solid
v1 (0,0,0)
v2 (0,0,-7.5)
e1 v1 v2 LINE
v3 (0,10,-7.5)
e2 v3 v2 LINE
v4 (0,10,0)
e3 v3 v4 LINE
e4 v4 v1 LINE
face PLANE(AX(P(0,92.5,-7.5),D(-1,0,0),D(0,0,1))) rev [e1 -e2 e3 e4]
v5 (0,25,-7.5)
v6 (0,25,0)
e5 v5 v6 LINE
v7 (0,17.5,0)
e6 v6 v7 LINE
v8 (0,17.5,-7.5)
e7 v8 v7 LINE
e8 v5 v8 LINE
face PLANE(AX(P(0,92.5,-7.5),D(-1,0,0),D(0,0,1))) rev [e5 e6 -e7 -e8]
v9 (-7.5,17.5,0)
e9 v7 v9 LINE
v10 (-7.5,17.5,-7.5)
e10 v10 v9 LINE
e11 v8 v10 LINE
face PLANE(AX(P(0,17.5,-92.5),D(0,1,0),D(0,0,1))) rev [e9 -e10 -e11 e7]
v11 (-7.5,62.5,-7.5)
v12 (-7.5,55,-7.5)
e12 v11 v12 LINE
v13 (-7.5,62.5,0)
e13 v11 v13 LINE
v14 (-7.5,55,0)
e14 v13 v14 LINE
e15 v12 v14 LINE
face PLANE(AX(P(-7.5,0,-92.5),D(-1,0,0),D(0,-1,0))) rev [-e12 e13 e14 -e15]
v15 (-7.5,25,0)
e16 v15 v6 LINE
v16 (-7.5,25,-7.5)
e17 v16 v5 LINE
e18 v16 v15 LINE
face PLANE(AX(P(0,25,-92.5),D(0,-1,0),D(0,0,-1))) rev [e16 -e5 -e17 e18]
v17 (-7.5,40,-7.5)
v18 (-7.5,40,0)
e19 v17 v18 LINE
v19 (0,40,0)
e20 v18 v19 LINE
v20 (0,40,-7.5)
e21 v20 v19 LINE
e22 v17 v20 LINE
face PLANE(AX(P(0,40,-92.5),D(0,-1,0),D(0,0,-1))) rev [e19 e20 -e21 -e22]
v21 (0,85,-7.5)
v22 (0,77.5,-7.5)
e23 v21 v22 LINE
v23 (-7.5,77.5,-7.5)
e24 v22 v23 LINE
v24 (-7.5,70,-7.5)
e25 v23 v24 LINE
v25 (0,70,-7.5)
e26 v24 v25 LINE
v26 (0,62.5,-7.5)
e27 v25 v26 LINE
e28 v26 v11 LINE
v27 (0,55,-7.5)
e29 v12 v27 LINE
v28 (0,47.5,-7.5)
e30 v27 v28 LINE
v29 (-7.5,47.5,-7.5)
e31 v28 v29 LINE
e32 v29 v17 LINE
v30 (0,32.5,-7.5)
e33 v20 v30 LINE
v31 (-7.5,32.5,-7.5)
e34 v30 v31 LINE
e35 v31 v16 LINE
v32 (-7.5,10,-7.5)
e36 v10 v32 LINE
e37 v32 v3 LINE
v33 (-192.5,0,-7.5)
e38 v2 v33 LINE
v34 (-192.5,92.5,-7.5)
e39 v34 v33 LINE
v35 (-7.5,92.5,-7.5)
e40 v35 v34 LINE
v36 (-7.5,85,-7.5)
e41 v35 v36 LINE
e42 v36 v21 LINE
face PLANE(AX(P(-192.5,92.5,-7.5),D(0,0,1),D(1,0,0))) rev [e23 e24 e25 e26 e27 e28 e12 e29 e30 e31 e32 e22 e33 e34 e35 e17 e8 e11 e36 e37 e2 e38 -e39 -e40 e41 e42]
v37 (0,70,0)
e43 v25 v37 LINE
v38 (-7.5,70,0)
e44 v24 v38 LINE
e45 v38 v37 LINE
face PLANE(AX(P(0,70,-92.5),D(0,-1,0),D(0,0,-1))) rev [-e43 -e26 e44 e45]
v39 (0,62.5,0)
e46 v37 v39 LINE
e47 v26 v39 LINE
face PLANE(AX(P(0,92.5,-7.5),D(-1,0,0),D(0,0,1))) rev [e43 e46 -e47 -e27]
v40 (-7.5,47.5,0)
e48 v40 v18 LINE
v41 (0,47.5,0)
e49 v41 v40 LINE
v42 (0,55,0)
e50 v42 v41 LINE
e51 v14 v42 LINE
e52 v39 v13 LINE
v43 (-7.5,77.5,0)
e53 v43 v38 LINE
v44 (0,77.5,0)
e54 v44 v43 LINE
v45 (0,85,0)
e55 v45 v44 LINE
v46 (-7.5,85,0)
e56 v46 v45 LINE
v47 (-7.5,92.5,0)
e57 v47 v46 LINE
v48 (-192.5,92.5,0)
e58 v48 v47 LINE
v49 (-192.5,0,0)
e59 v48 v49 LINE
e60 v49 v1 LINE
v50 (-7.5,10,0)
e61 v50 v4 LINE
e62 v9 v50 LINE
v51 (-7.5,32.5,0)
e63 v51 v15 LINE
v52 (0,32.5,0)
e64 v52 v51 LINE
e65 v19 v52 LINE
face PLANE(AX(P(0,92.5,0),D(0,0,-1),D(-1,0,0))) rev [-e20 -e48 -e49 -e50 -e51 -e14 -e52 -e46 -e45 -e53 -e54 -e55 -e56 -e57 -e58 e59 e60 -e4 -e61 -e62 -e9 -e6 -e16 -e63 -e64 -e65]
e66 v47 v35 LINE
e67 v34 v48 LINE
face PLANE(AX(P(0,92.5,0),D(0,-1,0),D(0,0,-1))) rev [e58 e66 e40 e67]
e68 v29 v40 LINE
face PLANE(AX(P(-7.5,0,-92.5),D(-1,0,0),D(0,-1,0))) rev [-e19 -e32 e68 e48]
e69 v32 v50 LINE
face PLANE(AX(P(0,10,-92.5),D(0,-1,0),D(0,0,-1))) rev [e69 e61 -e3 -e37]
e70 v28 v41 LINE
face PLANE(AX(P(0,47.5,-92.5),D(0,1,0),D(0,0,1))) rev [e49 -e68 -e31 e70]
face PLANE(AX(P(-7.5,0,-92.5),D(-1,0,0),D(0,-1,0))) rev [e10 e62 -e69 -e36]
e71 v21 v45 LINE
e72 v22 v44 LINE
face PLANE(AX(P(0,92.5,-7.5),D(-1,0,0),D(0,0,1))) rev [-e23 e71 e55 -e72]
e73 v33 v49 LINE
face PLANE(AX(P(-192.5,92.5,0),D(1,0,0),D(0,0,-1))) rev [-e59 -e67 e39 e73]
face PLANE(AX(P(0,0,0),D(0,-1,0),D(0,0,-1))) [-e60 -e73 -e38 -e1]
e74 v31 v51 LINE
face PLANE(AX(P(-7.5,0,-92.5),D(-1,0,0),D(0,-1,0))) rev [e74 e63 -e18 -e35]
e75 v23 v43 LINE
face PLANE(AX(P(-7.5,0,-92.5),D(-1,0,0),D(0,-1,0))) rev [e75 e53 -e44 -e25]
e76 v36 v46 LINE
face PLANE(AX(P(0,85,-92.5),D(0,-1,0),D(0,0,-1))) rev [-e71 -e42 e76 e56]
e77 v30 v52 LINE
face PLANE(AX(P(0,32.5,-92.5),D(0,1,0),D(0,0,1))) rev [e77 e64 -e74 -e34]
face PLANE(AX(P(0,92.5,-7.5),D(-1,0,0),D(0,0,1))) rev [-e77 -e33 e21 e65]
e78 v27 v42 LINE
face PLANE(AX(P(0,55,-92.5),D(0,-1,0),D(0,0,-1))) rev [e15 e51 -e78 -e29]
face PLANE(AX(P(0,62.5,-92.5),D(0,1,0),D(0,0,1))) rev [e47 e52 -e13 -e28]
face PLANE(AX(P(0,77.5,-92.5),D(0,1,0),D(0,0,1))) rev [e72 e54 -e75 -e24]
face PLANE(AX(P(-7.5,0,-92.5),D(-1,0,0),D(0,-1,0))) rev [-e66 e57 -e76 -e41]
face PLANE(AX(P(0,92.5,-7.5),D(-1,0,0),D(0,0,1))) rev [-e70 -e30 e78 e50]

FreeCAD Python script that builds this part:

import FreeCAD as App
import Part
import Sketcher
from FreeCAD import Vector
Q = App.Units.Quantity


def add_polygon(sketch, points):
    """Adds a closed chain of lines whose ends are joined by coincident constraints."""
    first, n = sketch.GeometryCount, len(points)
    for a, b in zip(points, points[1:] + points[:1]):
        sketch.addGeometry(Part.LineSegment(App.Vector(*a, 0), App.Vector(*b, 0)), False)
    for i in range(n):
        sketch.addConstraint(Sketcher.Constraint("Coincident", first + i, 2, first + (i + 1) % n, 1))

doc = App.newDocument("Part")
body = doc.addObject("PartDesign::Body", "Body")

# Sketch on XZ plane
sketch1 = body.newObject("Sketcher::SketchObject", "Sketch")
sketch1.AttachmentSupport = (doc.getObject("XZ_Plane"), [""])
sketch1.MapMode = "FlatFace"
add_polygon(sketch1, [(-192, -8), (-192, 0), (0, 0), (0, -8)])  # lines 0-3
sketch1.addConstraint([
    Sketcher.Constraint("Vertical", 0),
    Sketcher.Constraint("Horizontal", 1),
    Sketcher.Constraint("Vertical", 2),
    Sketcher.Constraint("Horizontal", 3),
    Sketcher.Constraint("Coincident", 1, 2, -1, 1),
    Sketcher.Constraint("DistanceX", 1, 1, 1, 2, Q("192.5 mm")),
    Sketcher.Constraint("DistanceY", 0, 1, 0, 2, Q("7.5 mm")),
])
pad1 = body.newObject("PartDesign::Pad", "Pad")
pad1.Profile = sketch1
pad1.Length = 92.5
pad1.Reversed = True

# Sketch on XY plane
sketch2 = body.newObject("Sketcher::SketchObject", "Sketch001")
sketch2.AttachmentSupport = (doc.getObject("XY_Plane"), [""])
sketch2.MapMode = "FlatFace"
add_polygon(sketch2, [(-8, 92), (-8, 85), (0, 85), (0, 92)])  # lines 0-3
add_polygon(sketch2, [(-8, 78), (-8, 70), (0, 70), (0, 78)])  # lines 4-7
add_polygon(sketch2, [(-8, 62), (-8, 55), (0, 55), (0, 62)])  # lines 8-11
add_polygon(sketch2, [(-8, 48), (-8, 40), (0, 40), (0, 48)])  # lines 12-15
add_polygon(sketch2, [(-8, 32), (-8, 25), (0, 25), (0, 32)])  # lines 16-19
add_polygon(sketch2, [(-8, 18), (-8, 10), (0, 10), (0, 18)])  # lines 20-23
sketch2.addConstraint([
    Sketcher.Constraint("Vertical", 0),
    Sketcher.Constraint("Horizontal", 1),
    Sketcher.Constraint("Vertical", 2),
    Sketcher.Constraint("Horizontal", 3),
    Sketcher.Constraint("Vertical", 4),
    Sketcher.Constraint("Horizontal", 5),
    Sketcher.Constraint("Vertical", 6),
    Sketcher.Constraint("Horizontal", 7),
    Sketcher.Constraint("Vertical", 8),
    Sketcher.Constraint("Horizontal", 9),
    Sketcher.Constraint("Vertical", 10),
    Sketcher.Constraint("Horizontal", 11),
    Sketcher.Constraint("Vertical", 12),
    Sketcher.Constraint("Horizontal", 13),
    Sketcher.Constraint("Vertical", 14),
    Sketcher.Constraint("Horizontal", 15),
    Sketcher.Constraint("Vertical", 16),
    Sketcher.Constraint("Horizontal", 17),
    Sketcher.Constraint("Vertical", 18),
    Sketcher.Constraint("Horizontal", 19),
    Sketcher.Constraint("Vertical", 20),
    Sketcher.Constraint("Horizontal", 21),
    Sketcher.Constraint("Vertical", 22),
    Sketcher.Constraint("Horizontal", 23),
    Sketcher.Constraint("PointOnObject", 1, 2, -2),
    Sketcher.Constraint("PointOnObject", 5, 2, -2),
    Sketcher.Constraint("PointOnObject", 9, 2, -2),
    Sketcher.Constraint("PointOnObject", 13, 2, -2),
    Sketcher.Constraint("PointOnObject", 17, 2, -2),
    Sketcher.Constraint("PointOnObject", 21, 2, -2),
    Sketcher.Constraint("Vertical", 3, 2, 4, 2),
    Sketcher.Constraint("Vertical", 7, 2, 8, 2),
    Sketcher.Constraint("Vertical", 11, 2, 12, 2),
    Sketcher.Constraint("Vertical", 15, 2, 16, 2),
    Sketcher.Constraint("Vertical", 19, 2, 20, 2),
    Sketcher.Constraint("Equal", 23, 0),
    Sketcher.Constraint("Equal", 2, 4),
    Sketcher.Constraint("Equal", 6, 8),
    Sketcher.Constraint("Equal", 10, 12),
    Sketcher.Constraint("Equal", 14, 16),
    Sketcher.Constraint("Equal", 18, 20),
    Sketcher.Constraint("DistanceX", 1, 1, 1, 2, Q("7.5 mm")),
    Sketcher.Constraint("DistanceY", -1, 1, 0, 2, Q("85 mm")),
    Sketcher.Constraint("DistanceY", -1, 1, 4, 2, Q("70 mm")),
    Sketcher.Constraint("DistanceY", -1, 1, 8, 2, Q("55 mm")),
    Sketcher.Constraint("DistanceY", -1, 1, 12, 2, Q("40 mm")),
    Sketcher.Constraint("DistanceY", -1, 1, 16, 2, Q("25 mm")),
    Sketcher.Constraint("DistanceY", -1, 1, 20, 2, Q("10 mm")),
])
pocket1 = body.newObject("PartDesign::Pocket", "Pocket")
pocket1.Profile = sketch2
pocket1.Length = 92.5

doc.recompute()
